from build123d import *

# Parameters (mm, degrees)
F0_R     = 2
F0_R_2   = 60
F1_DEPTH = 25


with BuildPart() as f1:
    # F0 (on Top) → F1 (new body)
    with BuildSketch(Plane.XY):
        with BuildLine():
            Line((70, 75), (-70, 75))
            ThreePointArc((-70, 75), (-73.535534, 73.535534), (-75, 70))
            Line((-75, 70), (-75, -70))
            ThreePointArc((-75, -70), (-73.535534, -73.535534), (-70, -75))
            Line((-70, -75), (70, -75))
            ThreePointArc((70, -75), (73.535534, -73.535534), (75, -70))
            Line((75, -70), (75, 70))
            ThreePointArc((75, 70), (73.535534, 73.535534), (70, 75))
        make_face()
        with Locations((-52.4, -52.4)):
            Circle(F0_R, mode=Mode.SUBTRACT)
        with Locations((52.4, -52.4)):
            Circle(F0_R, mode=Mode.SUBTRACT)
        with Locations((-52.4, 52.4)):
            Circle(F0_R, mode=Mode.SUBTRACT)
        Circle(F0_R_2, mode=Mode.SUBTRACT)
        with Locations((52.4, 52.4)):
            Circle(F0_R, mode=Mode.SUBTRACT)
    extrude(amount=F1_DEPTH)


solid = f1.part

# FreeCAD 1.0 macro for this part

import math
import FreeCAD as App
import Part
import Sketcher
Q = App.Units.Quantity

doc = App.newDocument("Part")
params = doc.addObject("Spreadsheet::Sheet", "Params")
for row, (alias, value) in enumerate([
    ("sketch1_diameter", "4 mm"),
    ("sketch1_diameter2", "120 mm"),
    ("sketch1_radius", "5 mm"),
    ("sketch1_width", "140 mm"),
    ("pad1_length", "25 mm"),
], start=1):
    params.set(f"A{row}", alias)
    params.set(f"B{row}", "=" + value)
    params.setAlias(f"B{row}", alias)

body = doc.addObject("PartDesign::Body", "Body")

sketch1 = body.newObject("Sketcher::SketchObject", "Sketch")
sketch1.AttachmentSupport = (doc.getObject("XY_Plane"), [""])
sketch1.MapMode = "FlatFace"
sketch1.addGeometry(Part.LineSegment(App.Vector(70, 75, 0), App.Vector(-70, 75, 0)), False)
sketch1.addGeometry(Part.ArcOfCircle(Part.Circle(App.Vector(-70, 70, 0), App.Vector(0, 0, 1), 5), math.radians(90), math.radians(180)), False)
sketch1.addGeometry(Part.LineSegment(App.Vector(-75, 70, 0), App.Vector(-75, -70, 0)), False)
sketch1.addGeometry(Part.ArcOfCircle(Part.Circle(App.Vector(-70, -70, 0), App.Vector(0, 0, 1), 5), math.radians(180), math.radians(270)), False)
sketch1.addGeometry(Part.LineSegment(App.Vector(-70, -75, 0), App.Vector(70, -75, 0)), False)
sketch1.addGeometry(Part.ArcOfCircle(Part.Circle(App.Vector(70, -70, 0), App.Vector(0, 0, 1), 5), math.radians(-90), math.radians(0)), False)
sketch1.addGeometry(Part.LineSegment(App.Vector(75, -70, 0), App.Vector(75, 70, 0)), False)
sketch1.addGeometry(Part.ArcOfCircle(Part.Circle(App.Vector(70, 70, 0), App.Vector(0, 0, 1), 5), math.radians(0), math.radians(90)), False)
sketch1.addGeometry(Part.Circle(App.Vector(-52.4, -52.4, 0), App.Vector(0, 0, 1), 2), False)
sketch1.addGeometry(Part.Circle(App.Vector(52.4, -52.4, 0), App.Vector(0, 0, 1), 2), False)
sketch1.addGeometry(Part.Circle(App.Vector(-52.4, 52.4, 0), App.Vector(0, 0, 1), 2), False)
sketch1.addGeometry(Part.Circle(App.Vector(0, 0, 0), App.Vector(0, 0, 1), 60), False)
sketch1.addGeometry(Part.Circle(App.Vector(52.4, 52.4, 0), App.Vector(0, 0, 1), 2), False)
sketch1.addConstraint(Sketcher.Constraint("Tangent", 0, 2, 1, 1))
sketch1.addConstraint(Sketcher.Constraint("Tangent", 1, 2, 2, 1))
sketch1.addConstraint(Sketcher.Constraint("Tangent", 2, 2, 3, 1))
sketch1.addConstraint(Sketcher.Constraint("Tangent", 3, 2, 4, 1))
sketch1.addConstraint(Sketcher.Constraint("Tangent", 4, 2, 5, 1))
sketch1.addConstraint(Sketcher.Constraint("Tangent", 5, 2, 6, 1))
sketch1.addConstraint(Sketcher.Constraint("Tangent", 6, 2, 7, 1))
sketch1.addConstraint(Sketcher.Constraint("Tangent", 7, 2, 0, 1))
sketch1.addConstraint(Sketcher.Constraint("Horizontal", 0))
sketch1.addConstraint(Sketcher.Constraint("Vertical", 2))
sketch1.addConstraint(Sketcher.Constraint("Horizontal", 4))
sketch1.addConstraint(Sketcher.Constraint("Vertical", 6))
sketch1.addConstraint(Sketcher.Constraint("Coincident", 11, 3, -1, 1))
sketch1.addConstraint(Sketcher.Constraint("Equal", 1, 3))
sketch1.addConstraint(Sketcher.Constraint("Equal", 3, 5))
sketch1.addConstraint(Sketcher.Constraint("Equal", 5, 7))
sketch1.addConstraint(Sketcher.Constraint("Equal", 8, 9))
sketch1.addConstraint(Sketcher.Constraint("Equal", 9, 10))
sketch1.addConstraint(Sketcher.Constraint("Equal", 10, 12))
sketch1.addConstraint(Sketcher.Constraint("Symmetric", 1, 3, 5, 3, -1, 1))
sketch1.addConstraint(Sketcher.Constraint("Symmetric", 9, 3, 10, 3, -1, 1))
sketch1.addConstraint(Sketcher.Constraint("Symmetric", 8, 3, 12, 3, -1, 1))
sketch1.addConstraint(Sketcher.Constraint("Symmetric", 8, 3, 9, 3, -2))
sketch1.addConstraint(Sketcher.Constraint("Equal", 4, 2))
sketch1.addConstraint(Sketcher.Constraint("Diameter", 8, Q("4 mm")))
sketch1.addConstraint(Sketcher.Constraint("Diameter", 11, Q("120 mm")))
sketch1.addConstraint(Sketcher.Constraint("Radius", 1, Q("5 mm")))
sketch1.addConstraint(Sketcher.Constraint("DistanceX", 0, 2, 0, 1, Q("140 mm")))
sketch1.addConstraint(Sketcher.Constraint("DistanceX", 8, 3, -1, 1, Q("52.4 mm")))
sketch1.addConstraint(Sketcher.Constraint("DistanceY", 8, 3, -1, 1, Q("52.4 mm")))
sketch1.setExpression("Constraints[24]", "Params.sketch1_diameter")
sketch1.setExpression("Constraints[25]", "Params.sketch1_diameter2")
sketch1.setExpression("Constraints[26]", "Params.sketch1_radius")
sketch1.setExpression("Constraints[27]", "Params.sketch1_width")
pad1 = body.newObject("PartDesign::Pad", "Pad")
pad1.Profile = sketch1
pad1.setExpression("Length", "Params.pad1_length")

doc.recompute()
